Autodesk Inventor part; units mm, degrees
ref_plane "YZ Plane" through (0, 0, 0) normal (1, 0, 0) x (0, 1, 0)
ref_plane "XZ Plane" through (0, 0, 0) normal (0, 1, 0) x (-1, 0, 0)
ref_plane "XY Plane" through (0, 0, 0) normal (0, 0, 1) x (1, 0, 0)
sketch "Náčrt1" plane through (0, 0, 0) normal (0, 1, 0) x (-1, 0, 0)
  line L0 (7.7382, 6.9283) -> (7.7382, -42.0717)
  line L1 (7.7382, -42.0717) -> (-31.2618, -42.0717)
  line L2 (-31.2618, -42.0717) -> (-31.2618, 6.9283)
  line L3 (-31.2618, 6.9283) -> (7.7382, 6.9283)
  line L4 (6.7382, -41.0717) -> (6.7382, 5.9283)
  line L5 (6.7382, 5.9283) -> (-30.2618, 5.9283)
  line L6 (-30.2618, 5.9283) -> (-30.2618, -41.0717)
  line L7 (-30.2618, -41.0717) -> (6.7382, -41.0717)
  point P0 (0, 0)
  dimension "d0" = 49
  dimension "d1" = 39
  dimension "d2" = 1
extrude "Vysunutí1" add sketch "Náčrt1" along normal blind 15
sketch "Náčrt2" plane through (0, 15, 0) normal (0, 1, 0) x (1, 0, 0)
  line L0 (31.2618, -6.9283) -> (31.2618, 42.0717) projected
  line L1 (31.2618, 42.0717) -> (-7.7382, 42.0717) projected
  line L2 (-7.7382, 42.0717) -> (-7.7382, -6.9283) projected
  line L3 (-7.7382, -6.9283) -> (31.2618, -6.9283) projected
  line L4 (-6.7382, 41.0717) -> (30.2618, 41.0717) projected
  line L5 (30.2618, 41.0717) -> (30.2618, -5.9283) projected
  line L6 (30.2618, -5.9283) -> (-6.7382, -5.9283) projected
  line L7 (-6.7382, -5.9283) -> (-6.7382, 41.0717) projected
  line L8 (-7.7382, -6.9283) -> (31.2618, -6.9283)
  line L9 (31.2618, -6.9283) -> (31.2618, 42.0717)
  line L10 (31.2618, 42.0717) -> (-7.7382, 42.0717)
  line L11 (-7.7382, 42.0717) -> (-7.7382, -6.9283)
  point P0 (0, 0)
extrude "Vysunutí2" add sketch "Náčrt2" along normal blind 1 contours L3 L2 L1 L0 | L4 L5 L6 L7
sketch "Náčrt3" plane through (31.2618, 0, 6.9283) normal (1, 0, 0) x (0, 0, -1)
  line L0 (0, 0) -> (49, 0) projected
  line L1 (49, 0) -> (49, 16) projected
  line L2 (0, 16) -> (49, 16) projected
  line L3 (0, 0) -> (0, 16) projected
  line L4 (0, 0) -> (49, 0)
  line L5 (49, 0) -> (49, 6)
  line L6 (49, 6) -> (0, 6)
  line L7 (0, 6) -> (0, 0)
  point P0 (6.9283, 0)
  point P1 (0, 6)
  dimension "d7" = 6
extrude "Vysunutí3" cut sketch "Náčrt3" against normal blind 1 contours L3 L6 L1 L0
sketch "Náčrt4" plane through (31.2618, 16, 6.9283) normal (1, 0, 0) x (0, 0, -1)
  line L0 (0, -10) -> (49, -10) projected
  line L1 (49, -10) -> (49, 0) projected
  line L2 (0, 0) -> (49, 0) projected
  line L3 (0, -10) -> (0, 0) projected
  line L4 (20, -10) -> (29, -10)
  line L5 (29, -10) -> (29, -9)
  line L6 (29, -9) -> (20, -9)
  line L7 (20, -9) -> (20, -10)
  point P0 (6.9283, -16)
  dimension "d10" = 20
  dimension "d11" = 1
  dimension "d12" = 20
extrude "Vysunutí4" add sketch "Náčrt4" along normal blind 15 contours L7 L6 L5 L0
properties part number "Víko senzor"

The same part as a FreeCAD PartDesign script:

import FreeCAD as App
import Part
import Sketcher

V = App.Vector
Q = App.Units.Quantity


def add_polygon(sketch, points):
    """Adds a closed chain of lines whose ends are joined by coincident constraints."""
    first, n = sketch.GeometryCount, len(points)
    for a, b in zip(points, points[1:] + points[:1]):
        sketch.addGeometry(Part.LineSegment(App.Vector(*a, 0), App.Vector(*b, 0)), False)
    for i in range(n):
        sketch.addConstraint(Sketcher.Constraint("Coincident", first + i, 2, first + (i + 1) % n, 1))

doc = App.newDocument("Part")
body = doc.addObject("PartDesign::Body", "Body")

sketch1 = body.newObject("Sketcher::SketchObject", "Sketch")
sketch1.AttachmentSupport = (doc.getObject("XZ_Plane"), [""])
sketch1.MapMode = "FlatFace"
add_polygon(sketch1, [(-8, -42), (-8, 7), (31, 7), (31, -42)])
add_polygon(sketch1, [(-7, 6), (-7, -41), (30, -41), (30, 6)])
sketch1.addConstraint(Sketcher.Constraint("Vertical", 0))
sketch1.addConstraint(Sketcher.Constraint("Horizontal", 1))
sketch1.addConstraint(Sketcher.Constraint("Vertical", 2))
sketch1.addConstraint(Sketcher.Constraint("Horizontal", 3))
sketch1.addConstraint(Sketcher.Constraint("Vertical", 4))
sketch1.addConstraint(Sketcher.Constraint("Horizontal", 5))
sketch1.addConstraint(Sketcher.Constraint("Vertical", 6))
sketch1.addConstraint(Sketcher.Constraint("Horizontal", 7))
sketch1.addConstraint(Sketcher.Constraint("DistanceX", 1, 1, 1, 2, Q("39 mm")))
sketch1.addConstraint(Sketcher.Constraint("DistanceY", 0, 1, 0, 2, Q("49 mm")))
sketch1.addConstraint(Sketcher.Constraint("DistanceX", 3, 2, 4, 2, Q("1 mm")))
sketch1.addConstraint(Sketcher.Constraint("DistanceY", 3, 2, 4, 2, Q("1 mm")))
sketch1.addConstraint(Sketcher.Constraint("DistanceX", 5, 2, 2, 2, Q("1 mm")))
sketch1.addConstraint(Sketcher.Constraint("DistanceY", 6, 2, 1, 2, Q("1 mm")))
sketch1.addConstraint(Sketcher.Constraint("DistanceX", 0, 2, -1, 1, Q("7.7382 mm")))
sketch1.addConstraint(Sketcher.Constraint("DistanceY", -1, 1, 0, 2, Q("6.9283 mm")))
pad1 = body.newObject("PartDesign::Pad", "Pad")
pad1.Profile = sketch1
pad1.Length = 15
pad1.Reversed = True

sketch2 = body.newObject("Sketcher::SketchObject", "Sketch001")
sketch2.AttachmentSupport = (doc.getObject("XZ_Plane"), [""])
sketch2.MapMode = "FlatFace"
sketch2.AttachmentOffset = App.Placement(V(0, 0, -15), App.Rotation())
add_polygon(sketch2, [(-8, 7), (31, 7), (31, -42), (-8, -42)])
sketch2.addConstraint(Sketcher.Constraint("Horizontal", 0))
sketch2.addConstraint(Sketcher.Constraint("Vertical", 1))
sketch2.addConstraint(Sketcher.Constraint("Horizontal", 2))
sketch2.addConstraint(Sketcher.Constraint("Vertical", 3))
sketch2.addConstraint(Sketcher.Constraint("DistanceX", 0, 1, 0, 2, Q("39 mm")))
sketch2.addConstraint(Sketcher.Constraint("DistanceY", 1, 2, 1, 1, Q("49 mm")))
sketch2.addConstraint(Sketcher.Constraint("DistanceX", -1, 1, 0, 2, Q("31.2618 mm")))
sketch2.addConstraint(Sketcher.Constraint("DistanceY", -1, 1, 0, 2, Q("6.9283 mm")))
pad2 = body.newObject("PartDesign::Pad", "Pad001")
pad2.Profile = sketch2
pad2.Length = 1
pad2.Reversed = True

sketch3 = body.newObject("Sketcher::SketchObject", "Sketch002")
sketch3.AttachmentSupport = (doc.getObject("YZ_Plane"), [""])
sketch3.MapMode = "FlatFace"
sketch3.AttachmentOffset = App.Placement(V(0, 0, 31.2618), App.Rotation())
add_polygon(sketch3, [(6, 7), (0, 7), (0, -42), (6, -42)])
sketch3.addConstraint(Sketcher.Constraint("Horizontal", 0))
sketch3.addConstraint(Sketcher.Constraint("Vertical", 1))
sketch3.addConstraint(Sketcher.Constraint("Horizontal", 2))
sketch3.addConstraint(Sketcher.Constraint("Vertical", 3))
sketch3.addConstraint(Sketcher.Constraint("PointOnObject", 0, 2, -2))
sketch3.addConstraint(Sketcher.Constraint("DistanceX", 0, 2, 0, 1, Q("6 mm")))
sketch3.addConstraint(Sketcher.Constraint("DistanceY", 1, 2, 1, 1, Q("49 mm")))
sketch3.addConstraint(Sketcher.Constraint("DistanceY", -1, 1, 0, 2, Q("6.9283 mm")))
pocket1 = body.newObject("PartDesign::Pocket", "Pocket")
pocket1.Profile = sketch3
pocket1.Length = 1

sketch4 = body.newObject("Sketcher::SketchObject", "Sketch003")
sketch4.AttachmentSupport = (doc.getObject("YZ_Plane"), [""])
sketch4.MapMode = "FlatFace"
sketch4.AttachmentOffset = App.Placement(V(0, 0, 31.2618), App.Rotation())
add_polygon(sketch4, [(7, -13.1), (6, -13.1), (6, -22.1), (7, -22.1)])
sketch4.addConstraint(Sketcher.Constraint("Horizontal", 0))
sketch4.addConstraint(Sketcher.Constraint("Vertical", 1))
sketch4.addConstraint(Sketcher.Constraint("Horizontal", 2))
sketch4.addConstraint(Sketcher.Constraint("Vertical", 3))
sketch4.addConstraint(Sketcher.Constraint("DistanceX", 0, 2, 0, 1, Q("1 mm")))
sketch4.addConstraint(Sketcher.Constraint("DistanceY", 1, 2, 1, 1, Q("9 mm")))
sketch4.addConstraint(Sketcher.Constraint("DistanceX", -1, 1, 0, 2, Q("6 mm")))
sketch4.addConstraint(Sketcher.Constraint("DistanceY", 0, 2, -1, 1, Q("13.0717 mm")))
pad3 = body.newObject("PartDesign::Pad", "Pad002")
pad3.Profile = sketch4
pad3.Length = 15

doc.recompute()
